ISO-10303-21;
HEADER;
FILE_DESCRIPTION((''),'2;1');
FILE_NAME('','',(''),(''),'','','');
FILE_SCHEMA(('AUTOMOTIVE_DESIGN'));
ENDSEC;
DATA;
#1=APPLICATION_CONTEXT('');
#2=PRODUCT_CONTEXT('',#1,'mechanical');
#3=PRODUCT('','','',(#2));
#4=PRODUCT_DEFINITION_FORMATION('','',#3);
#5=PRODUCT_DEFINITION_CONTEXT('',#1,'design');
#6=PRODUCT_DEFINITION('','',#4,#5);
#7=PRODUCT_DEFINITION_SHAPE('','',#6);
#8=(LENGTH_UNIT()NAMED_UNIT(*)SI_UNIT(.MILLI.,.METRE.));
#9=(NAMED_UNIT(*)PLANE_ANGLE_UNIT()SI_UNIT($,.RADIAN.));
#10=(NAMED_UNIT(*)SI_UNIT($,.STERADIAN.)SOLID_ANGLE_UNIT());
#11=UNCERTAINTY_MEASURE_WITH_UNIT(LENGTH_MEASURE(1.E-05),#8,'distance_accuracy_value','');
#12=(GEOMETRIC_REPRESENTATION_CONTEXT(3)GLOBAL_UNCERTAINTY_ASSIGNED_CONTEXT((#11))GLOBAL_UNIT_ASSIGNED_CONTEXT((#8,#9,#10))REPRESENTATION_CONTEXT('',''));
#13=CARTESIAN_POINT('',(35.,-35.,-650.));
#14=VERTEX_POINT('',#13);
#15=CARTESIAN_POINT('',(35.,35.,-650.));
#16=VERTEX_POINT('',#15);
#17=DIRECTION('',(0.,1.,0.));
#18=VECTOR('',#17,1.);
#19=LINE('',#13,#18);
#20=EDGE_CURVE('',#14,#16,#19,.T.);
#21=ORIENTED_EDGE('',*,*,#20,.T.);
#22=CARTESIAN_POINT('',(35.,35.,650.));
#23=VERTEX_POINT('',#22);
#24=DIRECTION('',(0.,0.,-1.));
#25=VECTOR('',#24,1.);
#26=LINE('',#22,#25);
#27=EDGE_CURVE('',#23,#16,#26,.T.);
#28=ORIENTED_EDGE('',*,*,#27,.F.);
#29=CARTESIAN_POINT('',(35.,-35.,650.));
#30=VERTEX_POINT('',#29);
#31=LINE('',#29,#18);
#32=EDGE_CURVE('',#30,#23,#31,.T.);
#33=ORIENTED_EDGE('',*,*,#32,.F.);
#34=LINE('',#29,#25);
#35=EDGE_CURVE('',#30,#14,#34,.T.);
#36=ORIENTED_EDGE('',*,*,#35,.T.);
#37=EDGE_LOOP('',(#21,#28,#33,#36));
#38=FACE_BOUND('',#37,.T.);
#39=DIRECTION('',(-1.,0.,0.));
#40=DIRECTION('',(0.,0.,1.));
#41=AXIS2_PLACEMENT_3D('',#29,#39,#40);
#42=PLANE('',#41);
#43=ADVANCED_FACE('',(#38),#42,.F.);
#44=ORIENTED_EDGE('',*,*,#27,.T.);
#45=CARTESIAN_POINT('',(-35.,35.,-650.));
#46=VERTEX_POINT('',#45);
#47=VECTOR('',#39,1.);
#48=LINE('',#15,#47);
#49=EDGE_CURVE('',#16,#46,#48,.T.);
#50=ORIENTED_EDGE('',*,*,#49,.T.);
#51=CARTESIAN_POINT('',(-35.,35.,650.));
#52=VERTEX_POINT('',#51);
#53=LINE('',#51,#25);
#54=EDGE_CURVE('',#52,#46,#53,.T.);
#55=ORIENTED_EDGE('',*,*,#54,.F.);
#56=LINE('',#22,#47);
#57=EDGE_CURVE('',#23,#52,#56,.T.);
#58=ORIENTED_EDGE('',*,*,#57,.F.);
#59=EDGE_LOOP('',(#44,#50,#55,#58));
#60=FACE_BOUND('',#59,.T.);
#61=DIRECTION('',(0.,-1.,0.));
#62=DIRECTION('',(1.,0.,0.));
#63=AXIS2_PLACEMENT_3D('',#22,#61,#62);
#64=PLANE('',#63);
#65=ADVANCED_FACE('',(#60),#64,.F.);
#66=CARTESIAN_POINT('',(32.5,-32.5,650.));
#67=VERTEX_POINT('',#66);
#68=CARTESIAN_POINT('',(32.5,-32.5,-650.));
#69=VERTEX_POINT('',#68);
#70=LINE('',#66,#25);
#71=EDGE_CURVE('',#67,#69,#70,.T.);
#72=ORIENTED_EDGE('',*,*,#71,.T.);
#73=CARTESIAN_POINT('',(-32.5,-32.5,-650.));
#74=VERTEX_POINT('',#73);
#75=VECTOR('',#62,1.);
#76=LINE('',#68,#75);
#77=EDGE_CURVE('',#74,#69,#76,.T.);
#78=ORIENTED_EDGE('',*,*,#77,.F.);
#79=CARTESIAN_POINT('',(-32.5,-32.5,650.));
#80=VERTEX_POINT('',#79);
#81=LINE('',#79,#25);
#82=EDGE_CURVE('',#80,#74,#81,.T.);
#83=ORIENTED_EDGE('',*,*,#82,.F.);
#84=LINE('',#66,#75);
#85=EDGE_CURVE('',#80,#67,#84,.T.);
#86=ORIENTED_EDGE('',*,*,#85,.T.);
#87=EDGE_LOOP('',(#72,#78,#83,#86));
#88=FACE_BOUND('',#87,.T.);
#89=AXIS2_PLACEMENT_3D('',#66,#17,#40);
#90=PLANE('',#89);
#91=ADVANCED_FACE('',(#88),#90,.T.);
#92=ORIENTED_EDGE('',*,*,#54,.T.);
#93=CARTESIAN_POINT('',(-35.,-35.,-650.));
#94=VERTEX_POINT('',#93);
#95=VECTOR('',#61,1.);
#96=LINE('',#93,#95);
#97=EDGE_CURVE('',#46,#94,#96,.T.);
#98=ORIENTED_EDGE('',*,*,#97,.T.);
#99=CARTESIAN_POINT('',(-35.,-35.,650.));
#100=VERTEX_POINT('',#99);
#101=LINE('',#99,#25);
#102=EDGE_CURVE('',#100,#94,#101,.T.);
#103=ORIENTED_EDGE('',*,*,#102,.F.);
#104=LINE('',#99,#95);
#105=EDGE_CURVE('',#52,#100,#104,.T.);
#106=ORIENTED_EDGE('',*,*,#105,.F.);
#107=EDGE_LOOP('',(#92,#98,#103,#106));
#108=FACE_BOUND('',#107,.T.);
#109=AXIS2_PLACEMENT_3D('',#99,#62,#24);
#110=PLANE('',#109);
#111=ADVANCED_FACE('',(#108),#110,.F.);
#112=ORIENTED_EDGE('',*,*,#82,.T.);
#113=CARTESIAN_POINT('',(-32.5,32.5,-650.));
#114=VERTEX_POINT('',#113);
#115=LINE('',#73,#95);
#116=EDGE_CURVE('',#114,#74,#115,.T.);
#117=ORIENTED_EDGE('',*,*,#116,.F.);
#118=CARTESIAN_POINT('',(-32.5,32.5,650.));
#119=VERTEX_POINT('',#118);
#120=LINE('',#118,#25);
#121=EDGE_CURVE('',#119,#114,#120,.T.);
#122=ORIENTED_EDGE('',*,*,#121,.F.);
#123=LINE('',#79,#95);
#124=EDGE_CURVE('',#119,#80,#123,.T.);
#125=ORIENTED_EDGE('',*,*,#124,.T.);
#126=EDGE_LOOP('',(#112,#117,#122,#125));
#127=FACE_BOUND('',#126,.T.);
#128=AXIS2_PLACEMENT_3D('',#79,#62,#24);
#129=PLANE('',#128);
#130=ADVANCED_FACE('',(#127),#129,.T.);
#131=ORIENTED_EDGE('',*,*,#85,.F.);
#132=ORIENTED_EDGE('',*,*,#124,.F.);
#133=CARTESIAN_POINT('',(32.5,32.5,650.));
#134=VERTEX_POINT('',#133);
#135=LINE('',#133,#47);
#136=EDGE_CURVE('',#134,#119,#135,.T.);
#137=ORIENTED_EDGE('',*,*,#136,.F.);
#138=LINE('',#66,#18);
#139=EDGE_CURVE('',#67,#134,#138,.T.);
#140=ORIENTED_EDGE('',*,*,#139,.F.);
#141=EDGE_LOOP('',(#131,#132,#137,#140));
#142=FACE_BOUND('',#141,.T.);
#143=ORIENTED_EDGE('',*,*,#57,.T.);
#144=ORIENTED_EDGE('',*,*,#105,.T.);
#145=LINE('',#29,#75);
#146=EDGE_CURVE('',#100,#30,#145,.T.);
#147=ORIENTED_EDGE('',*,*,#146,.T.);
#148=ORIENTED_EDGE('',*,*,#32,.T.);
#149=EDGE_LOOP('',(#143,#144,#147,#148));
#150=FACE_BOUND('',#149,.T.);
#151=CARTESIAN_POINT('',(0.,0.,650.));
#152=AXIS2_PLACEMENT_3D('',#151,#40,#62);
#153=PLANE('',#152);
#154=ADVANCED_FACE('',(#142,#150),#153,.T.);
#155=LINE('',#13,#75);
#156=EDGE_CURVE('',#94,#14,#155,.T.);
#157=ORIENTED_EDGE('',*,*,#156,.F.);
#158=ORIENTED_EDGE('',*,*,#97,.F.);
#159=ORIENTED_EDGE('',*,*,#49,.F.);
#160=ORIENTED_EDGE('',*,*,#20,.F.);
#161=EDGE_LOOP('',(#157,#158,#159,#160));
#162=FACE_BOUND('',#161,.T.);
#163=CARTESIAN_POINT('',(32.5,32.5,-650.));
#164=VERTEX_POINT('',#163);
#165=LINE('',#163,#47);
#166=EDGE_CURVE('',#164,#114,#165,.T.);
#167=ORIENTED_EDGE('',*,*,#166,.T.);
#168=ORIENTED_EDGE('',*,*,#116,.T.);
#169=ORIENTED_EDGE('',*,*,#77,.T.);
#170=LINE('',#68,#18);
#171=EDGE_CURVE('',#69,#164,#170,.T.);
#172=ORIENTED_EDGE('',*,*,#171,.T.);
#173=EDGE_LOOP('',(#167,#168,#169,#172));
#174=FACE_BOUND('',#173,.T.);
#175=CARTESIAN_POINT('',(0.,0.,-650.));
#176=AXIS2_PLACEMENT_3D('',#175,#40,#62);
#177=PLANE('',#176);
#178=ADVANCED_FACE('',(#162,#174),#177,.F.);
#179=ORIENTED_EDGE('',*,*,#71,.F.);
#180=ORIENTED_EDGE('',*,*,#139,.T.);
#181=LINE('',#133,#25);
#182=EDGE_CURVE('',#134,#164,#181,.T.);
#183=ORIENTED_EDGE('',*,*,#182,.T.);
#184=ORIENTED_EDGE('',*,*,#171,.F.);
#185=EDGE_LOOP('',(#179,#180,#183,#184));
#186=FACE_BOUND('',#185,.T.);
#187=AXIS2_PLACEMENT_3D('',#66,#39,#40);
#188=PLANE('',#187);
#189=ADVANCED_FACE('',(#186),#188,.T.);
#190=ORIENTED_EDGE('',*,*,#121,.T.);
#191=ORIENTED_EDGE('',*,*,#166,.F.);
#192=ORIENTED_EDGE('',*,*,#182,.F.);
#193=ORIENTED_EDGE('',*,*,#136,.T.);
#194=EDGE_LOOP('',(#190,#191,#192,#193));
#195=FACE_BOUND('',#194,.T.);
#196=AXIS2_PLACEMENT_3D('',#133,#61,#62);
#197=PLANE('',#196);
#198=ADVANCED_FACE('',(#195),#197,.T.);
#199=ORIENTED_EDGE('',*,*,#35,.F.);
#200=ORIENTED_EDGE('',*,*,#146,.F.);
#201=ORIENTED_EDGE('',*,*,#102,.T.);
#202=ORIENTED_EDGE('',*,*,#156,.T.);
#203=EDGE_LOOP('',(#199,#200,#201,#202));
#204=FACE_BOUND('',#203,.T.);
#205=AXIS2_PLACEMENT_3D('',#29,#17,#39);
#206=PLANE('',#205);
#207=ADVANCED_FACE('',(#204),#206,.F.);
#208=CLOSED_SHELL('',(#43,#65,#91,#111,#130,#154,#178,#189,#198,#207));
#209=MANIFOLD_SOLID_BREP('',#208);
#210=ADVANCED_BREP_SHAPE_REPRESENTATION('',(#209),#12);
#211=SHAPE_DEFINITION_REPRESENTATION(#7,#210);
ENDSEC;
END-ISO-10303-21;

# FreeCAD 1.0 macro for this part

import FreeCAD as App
import Part
import Sketcher
from FreeCAD import Vector
Q = App.Units.Quantity


def add_polygon(sketch, points):
    """Adds a closed chain of lines whose ends are joined by coincident constraints."""
    first, n = sketch.GeometryCount, len(points)
    for a, b in zip(points, points[1:] + points[:1]):
        sketch.addGeometry(Part.LineSegment(App.Vector(*a, 0), App.Vector(*b, 0)), False)
    for i in range(n):
        sketch.addConstraint(Sketcher.Constraint("Coincident", first + i, 2, first + (i + 1) % n, 1))

doc = App.newDocument("Part")
body = doc.addObject("PartDesign::Body", "Body")

# Sketch on XY plane
sketch1 = body.newObject("Sketcher::SketchObject", "Sketch")
sketch1.AttachmentSupport = (doc.getObject("XY_Plane"), [""])
sketch1.MapMode = "FlatFace"
add_polygon(sketch1, [(-35, 35), (-35, -35), (35, -35), (35, 35)])  # lines 0-3
add_polygon(sketch1, [(32, -32), (-32, -32), (-32, 32), (32, 32)])  # lines 4-7
sketch1.addConstraint([
    Sketcher.Constraint("Vertical", 0),
    Sketcher.Constraint("Horizontal", 1),
    Sketcher.Constraint("Vertical", 2),
    Sketcher.Constraint("Horizontal", 3),
    Sketcher.Constraint("Horizontal", 4),
    Sketcher.Constraint("Vertical", 5),
    Sketcher.Constraint("Horizontal", 6),
    Sketcher.Constraint("Vertical", 7),
    Sketcher.Constraint("Symmetric", 0, 2, 2, 2, -1, 1),
    Sketcher.Constraint("Symmetric", 4, 2, 6, 2, -1, 1),
    Sketcher.Constraint("Equal", 3, 0),
    Sketcher.Constraint("Equal", 6, 5),
    Sketcher.Constraint("DistanceX", 1, 1, 1, 2, Q("70 mm")),
    Sketcher.Constraint("DistanceX", 4, 2, 4, 1, Q("65 mm")),
])
pad1 = body.newObject("PartDesign::Pad", "Pad")
pad1.Profile = sketch1
pad1.Length = 1300
pad1.Midplane = True

doc.recompute()
